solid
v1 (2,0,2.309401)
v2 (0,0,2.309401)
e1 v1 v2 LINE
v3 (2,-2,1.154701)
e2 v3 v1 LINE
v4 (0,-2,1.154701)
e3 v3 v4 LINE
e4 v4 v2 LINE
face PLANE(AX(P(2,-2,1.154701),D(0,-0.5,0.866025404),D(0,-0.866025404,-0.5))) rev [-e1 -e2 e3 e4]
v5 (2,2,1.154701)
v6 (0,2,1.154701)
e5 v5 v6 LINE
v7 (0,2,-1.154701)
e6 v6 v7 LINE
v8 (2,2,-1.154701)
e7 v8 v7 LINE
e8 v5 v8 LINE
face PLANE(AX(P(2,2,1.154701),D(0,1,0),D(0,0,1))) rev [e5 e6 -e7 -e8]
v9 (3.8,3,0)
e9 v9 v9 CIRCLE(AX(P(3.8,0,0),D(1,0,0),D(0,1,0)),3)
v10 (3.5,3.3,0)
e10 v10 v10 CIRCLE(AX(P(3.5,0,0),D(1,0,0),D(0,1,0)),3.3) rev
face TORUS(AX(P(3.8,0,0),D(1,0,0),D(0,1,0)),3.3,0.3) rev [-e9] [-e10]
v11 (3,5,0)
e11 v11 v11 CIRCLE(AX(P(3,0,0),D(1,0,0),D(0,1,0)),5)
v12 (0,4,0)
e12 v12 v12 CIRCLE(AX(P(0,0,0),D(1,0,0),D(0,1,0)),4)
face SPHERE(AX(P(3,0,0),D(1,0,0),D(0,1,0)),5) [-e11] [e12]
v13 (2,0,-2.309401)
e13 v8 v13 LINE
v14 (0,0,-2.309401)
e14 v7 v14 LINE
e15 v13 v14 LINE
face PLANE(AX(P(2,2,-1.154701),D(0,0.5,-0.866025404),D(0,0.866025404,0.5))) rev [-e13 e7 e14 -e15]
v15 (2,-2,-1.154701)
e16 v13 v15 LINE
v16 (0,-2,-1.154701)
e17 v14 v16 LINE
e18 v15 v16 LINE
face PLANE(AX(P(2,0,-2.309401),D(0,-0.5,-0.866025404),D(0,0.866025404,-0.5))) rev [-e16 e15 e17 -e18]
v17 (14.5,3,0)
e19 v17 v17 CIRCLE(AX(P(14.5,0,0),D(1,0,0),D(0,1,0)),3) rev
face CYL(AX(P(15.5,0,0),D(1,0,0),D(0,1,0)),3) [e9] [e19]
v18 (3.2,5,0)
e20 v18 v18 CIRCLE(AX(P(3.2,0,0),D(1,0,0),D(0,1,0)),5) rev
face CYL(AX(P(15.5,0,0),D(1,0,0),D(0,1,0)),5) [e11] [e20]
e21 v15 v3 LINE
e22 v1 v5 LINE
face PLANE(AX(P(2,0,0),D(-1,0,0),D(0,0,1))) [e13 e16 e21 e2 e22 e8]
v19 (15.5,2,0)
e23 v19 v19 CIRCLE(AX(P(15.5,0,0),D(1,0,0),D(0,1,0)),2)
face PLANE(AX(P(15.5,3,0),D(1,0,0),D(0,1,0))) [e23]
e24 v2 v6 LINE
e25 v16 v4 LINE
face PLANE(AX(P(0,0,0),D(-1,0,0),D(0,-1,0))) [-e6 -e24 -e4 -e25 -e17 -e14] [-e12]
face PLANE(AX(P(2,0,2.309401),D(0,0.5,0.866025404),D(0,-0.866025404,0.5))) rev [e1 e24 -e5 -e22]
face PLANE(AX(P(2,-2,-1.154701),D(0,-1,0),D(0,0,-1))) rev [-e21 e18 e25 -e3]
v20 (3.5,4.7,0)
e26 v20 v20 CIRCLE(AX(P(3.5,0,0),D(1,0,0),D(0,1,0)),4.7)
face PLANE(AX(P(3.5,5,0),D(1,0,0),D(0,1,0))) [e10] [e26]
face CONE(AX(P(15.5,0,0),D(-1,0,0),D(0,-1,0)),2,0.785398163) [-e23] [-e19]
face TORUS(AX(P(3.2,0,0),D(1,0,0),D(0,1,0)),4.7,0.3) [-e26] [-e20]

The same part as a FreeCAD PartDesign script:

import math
import FreeCAD as App
import Part
import Sketcher

V = App.Vector
Q = App.Units.Quantity


def edges_at(feature, points):
    """Names of the edges that pass closest to the given points."""
    edges = feature.Shape.Edges
    near = lambda p: min(range(len(edges)), key=lambda i: edges[i].distToShape(Part.Vertex(*p))[0])
    return sorted({f"Edge{near(p) + 1}" for p in points})


def add_polygon(sketch, points):
    """Adds a closed chain of lines whose ends are joined by coincident constraints."""
    first, n = sketch.GeometryCount, len(points)
    for a, b in zip(points, points[1:] + points[:1]):
        sketch.addGeometry(Part.LineSegment(App.Vector(*a, 0), App.Vector(*b, 0)), False)
    for i in range(n):
        sketch.addConstraint(Sketcher.Constraint("Coincident", first + i, 2, first + (i + 1) % n, 1))

doc = App.newDocument("Part")
body = doc.addObject("PartDesign::Body", "Body")

# Sketch on XY plane
sketch1 = doc.addObject("Sketcher::SketchObject", "Sketch")
body.addObject(sketch1)
sketch1.AttachmentSupport = (doc.XY_Plane, [""])
sketch1.MapMode = "FlatFace"
sketch1.addGeometry([
    Part.LineSegment(V(0, 4, 0), V(0, 0, 0)),  # 0
    Part.LineSegment(V(0, 0, 0), V(15.5, 0, 0)),  # 1
    Part.LineSegment(V(15.5, 0, 0), V(15.5, 3, 0)),  # 2
    Part.LineSegment(V(15.5, 3, 0), V(3.5, 3, 0)),  # 3
    Part.LineSegment(V(3.5, 3, 0), V(3.5, 5, 0)),  # 4
    Part.LineSegment(V(3.5, 5, 0), V(3, 5, 0)),  # 5
    Part.ArcOfCircle(Part.Circle(V(3, 0, 0), V(0, 0, 1), 5), math.radians(90), math.radians(127)),  # 6
], False)
sketch1.addConstraint([
    Sketcher.Constraint("Coincident", 0, 2, 1, 1),
    Sketcher.Constraint("Coincident", 1, 2, 2, 1),
    Sketcher.Constraint("Coincident", 2, 2, 3, 1),
    Sketcher.Constraint("Coincident", 3, 2, 4, 1),
    Sketcher.Constraint("Coincident", 4, 2, 5, 1),
    Sketcher.Constraint("Tangent", 5, 2, 6, 1),
    Sketcher.Constraint("Coincident", 6, 2, 0, 1),
    Sketcher.Constraint("Vertical", 0),
    Sketcher.Constraint("Horizontal", 1),
    Sketcher.Constraint("Vertical", 2),
    Sketcher.Constraint("Horizontal", 3),
    Sketcher.Constraint("Vertical", 4),
    Sketcher.Constraint("Horizontal", 5),
    Sketcher.Constraint("Coincident", 0, 2, -1, 1),
    Sketcher.Constraint("PointOnObject", 6, 3, -1),
    Sketcher.Constraint("Radius", 6, Q("5 mm")),
    Sketcher.Constraint("DistanceX", 3, 2, 3, 1, Q("12 mm")),
    Sketcher.Constraint("DistanceY", 0, 2, 0, 1, Q("4 mm")),
    Sketcher.Constraint("DistanceY", 2, 1, 2, 2, Q("3 mm")),
    Sketcher.Constraint("DistanceX", 1, 1, 1, 2, Q("15.5 mm")),
])
revolution = doc.addObject("PartDesign::Revolution", "Revolution")
body.addObject(revolution)
revolution.Profile = sketch1
revolution.ReferenceAxis = (sketch1, ["H_Axis"])
revolution.Angle = 360

# Sketch on YZ plane
sketch2 = doc.addObject("Sketcher::SketchObject", "Sketch001")
body.addObject(sketch2)
sketch2.AttachmentSupport = (doc.YZ_Plane, [""])
sketch2.MapMode = "FlatFace"
add_polygon(sketch2, [(2, 1.2), (2, -1.2), (0, -2.3), (-2, -1.2), (-2, 1.2), (0, 2.3)])  # lines 0-5
sketch2.addConstraint([
    Sketcher.Constraint("Vertical", 0),
    Sketcher.Constraint("Vertical", 3),
    Sketcher.Constraint("Symmetric", 0, 2, 3, 2, -1, 1),
    Sketcher.Constraint("Symmetric", 1, 2, 4, 2, -1, 1),
    Sketcher.Constraint("PointOnObject", 1, 2, -2),
    Sketcher.Constraint("Parallel", 2, 5),
    Sketcher.Constraint("Horizontal", 0, 2, 2, 2),
    Sketcher.Constraint("Angle", 1, Q("-150 deg")),
    Sketcher.Constraint("DistanceX", -1, 1, 0, 2, Q("2 mm")),
    Sketcher.Constraint("DistanceY", 0, 2, 0, 1, Q("2.309401 mm")),
])
pocket1 = doc.addObject("PartDesign::Pocket", "Pocket")
body.addObject(pocket1)
pocket1.Profile = sketch2
pocket1.Length = 2
pocket1.Reversed = True
doc.recompute()

fillet = doc.addObject("PartDesign::Fillet", "Fillet")
body.addObject(fillet)
fillet.Base = (pocket1, edges_at(pocket1, [(3.5, -3, 0), (3.5, -5, 0)]))
fillet.Radius = 0.3
doc.recompute()

chamfer = doc.addObject("PartDesign::Chamfer", "Chamfer")
body.addObject(chamfer)
chamfer.Base = (fillet, edges_at(fillet, [(15.5, -3, 0)]))
chamfer.Size = 1

doc.recompute()
